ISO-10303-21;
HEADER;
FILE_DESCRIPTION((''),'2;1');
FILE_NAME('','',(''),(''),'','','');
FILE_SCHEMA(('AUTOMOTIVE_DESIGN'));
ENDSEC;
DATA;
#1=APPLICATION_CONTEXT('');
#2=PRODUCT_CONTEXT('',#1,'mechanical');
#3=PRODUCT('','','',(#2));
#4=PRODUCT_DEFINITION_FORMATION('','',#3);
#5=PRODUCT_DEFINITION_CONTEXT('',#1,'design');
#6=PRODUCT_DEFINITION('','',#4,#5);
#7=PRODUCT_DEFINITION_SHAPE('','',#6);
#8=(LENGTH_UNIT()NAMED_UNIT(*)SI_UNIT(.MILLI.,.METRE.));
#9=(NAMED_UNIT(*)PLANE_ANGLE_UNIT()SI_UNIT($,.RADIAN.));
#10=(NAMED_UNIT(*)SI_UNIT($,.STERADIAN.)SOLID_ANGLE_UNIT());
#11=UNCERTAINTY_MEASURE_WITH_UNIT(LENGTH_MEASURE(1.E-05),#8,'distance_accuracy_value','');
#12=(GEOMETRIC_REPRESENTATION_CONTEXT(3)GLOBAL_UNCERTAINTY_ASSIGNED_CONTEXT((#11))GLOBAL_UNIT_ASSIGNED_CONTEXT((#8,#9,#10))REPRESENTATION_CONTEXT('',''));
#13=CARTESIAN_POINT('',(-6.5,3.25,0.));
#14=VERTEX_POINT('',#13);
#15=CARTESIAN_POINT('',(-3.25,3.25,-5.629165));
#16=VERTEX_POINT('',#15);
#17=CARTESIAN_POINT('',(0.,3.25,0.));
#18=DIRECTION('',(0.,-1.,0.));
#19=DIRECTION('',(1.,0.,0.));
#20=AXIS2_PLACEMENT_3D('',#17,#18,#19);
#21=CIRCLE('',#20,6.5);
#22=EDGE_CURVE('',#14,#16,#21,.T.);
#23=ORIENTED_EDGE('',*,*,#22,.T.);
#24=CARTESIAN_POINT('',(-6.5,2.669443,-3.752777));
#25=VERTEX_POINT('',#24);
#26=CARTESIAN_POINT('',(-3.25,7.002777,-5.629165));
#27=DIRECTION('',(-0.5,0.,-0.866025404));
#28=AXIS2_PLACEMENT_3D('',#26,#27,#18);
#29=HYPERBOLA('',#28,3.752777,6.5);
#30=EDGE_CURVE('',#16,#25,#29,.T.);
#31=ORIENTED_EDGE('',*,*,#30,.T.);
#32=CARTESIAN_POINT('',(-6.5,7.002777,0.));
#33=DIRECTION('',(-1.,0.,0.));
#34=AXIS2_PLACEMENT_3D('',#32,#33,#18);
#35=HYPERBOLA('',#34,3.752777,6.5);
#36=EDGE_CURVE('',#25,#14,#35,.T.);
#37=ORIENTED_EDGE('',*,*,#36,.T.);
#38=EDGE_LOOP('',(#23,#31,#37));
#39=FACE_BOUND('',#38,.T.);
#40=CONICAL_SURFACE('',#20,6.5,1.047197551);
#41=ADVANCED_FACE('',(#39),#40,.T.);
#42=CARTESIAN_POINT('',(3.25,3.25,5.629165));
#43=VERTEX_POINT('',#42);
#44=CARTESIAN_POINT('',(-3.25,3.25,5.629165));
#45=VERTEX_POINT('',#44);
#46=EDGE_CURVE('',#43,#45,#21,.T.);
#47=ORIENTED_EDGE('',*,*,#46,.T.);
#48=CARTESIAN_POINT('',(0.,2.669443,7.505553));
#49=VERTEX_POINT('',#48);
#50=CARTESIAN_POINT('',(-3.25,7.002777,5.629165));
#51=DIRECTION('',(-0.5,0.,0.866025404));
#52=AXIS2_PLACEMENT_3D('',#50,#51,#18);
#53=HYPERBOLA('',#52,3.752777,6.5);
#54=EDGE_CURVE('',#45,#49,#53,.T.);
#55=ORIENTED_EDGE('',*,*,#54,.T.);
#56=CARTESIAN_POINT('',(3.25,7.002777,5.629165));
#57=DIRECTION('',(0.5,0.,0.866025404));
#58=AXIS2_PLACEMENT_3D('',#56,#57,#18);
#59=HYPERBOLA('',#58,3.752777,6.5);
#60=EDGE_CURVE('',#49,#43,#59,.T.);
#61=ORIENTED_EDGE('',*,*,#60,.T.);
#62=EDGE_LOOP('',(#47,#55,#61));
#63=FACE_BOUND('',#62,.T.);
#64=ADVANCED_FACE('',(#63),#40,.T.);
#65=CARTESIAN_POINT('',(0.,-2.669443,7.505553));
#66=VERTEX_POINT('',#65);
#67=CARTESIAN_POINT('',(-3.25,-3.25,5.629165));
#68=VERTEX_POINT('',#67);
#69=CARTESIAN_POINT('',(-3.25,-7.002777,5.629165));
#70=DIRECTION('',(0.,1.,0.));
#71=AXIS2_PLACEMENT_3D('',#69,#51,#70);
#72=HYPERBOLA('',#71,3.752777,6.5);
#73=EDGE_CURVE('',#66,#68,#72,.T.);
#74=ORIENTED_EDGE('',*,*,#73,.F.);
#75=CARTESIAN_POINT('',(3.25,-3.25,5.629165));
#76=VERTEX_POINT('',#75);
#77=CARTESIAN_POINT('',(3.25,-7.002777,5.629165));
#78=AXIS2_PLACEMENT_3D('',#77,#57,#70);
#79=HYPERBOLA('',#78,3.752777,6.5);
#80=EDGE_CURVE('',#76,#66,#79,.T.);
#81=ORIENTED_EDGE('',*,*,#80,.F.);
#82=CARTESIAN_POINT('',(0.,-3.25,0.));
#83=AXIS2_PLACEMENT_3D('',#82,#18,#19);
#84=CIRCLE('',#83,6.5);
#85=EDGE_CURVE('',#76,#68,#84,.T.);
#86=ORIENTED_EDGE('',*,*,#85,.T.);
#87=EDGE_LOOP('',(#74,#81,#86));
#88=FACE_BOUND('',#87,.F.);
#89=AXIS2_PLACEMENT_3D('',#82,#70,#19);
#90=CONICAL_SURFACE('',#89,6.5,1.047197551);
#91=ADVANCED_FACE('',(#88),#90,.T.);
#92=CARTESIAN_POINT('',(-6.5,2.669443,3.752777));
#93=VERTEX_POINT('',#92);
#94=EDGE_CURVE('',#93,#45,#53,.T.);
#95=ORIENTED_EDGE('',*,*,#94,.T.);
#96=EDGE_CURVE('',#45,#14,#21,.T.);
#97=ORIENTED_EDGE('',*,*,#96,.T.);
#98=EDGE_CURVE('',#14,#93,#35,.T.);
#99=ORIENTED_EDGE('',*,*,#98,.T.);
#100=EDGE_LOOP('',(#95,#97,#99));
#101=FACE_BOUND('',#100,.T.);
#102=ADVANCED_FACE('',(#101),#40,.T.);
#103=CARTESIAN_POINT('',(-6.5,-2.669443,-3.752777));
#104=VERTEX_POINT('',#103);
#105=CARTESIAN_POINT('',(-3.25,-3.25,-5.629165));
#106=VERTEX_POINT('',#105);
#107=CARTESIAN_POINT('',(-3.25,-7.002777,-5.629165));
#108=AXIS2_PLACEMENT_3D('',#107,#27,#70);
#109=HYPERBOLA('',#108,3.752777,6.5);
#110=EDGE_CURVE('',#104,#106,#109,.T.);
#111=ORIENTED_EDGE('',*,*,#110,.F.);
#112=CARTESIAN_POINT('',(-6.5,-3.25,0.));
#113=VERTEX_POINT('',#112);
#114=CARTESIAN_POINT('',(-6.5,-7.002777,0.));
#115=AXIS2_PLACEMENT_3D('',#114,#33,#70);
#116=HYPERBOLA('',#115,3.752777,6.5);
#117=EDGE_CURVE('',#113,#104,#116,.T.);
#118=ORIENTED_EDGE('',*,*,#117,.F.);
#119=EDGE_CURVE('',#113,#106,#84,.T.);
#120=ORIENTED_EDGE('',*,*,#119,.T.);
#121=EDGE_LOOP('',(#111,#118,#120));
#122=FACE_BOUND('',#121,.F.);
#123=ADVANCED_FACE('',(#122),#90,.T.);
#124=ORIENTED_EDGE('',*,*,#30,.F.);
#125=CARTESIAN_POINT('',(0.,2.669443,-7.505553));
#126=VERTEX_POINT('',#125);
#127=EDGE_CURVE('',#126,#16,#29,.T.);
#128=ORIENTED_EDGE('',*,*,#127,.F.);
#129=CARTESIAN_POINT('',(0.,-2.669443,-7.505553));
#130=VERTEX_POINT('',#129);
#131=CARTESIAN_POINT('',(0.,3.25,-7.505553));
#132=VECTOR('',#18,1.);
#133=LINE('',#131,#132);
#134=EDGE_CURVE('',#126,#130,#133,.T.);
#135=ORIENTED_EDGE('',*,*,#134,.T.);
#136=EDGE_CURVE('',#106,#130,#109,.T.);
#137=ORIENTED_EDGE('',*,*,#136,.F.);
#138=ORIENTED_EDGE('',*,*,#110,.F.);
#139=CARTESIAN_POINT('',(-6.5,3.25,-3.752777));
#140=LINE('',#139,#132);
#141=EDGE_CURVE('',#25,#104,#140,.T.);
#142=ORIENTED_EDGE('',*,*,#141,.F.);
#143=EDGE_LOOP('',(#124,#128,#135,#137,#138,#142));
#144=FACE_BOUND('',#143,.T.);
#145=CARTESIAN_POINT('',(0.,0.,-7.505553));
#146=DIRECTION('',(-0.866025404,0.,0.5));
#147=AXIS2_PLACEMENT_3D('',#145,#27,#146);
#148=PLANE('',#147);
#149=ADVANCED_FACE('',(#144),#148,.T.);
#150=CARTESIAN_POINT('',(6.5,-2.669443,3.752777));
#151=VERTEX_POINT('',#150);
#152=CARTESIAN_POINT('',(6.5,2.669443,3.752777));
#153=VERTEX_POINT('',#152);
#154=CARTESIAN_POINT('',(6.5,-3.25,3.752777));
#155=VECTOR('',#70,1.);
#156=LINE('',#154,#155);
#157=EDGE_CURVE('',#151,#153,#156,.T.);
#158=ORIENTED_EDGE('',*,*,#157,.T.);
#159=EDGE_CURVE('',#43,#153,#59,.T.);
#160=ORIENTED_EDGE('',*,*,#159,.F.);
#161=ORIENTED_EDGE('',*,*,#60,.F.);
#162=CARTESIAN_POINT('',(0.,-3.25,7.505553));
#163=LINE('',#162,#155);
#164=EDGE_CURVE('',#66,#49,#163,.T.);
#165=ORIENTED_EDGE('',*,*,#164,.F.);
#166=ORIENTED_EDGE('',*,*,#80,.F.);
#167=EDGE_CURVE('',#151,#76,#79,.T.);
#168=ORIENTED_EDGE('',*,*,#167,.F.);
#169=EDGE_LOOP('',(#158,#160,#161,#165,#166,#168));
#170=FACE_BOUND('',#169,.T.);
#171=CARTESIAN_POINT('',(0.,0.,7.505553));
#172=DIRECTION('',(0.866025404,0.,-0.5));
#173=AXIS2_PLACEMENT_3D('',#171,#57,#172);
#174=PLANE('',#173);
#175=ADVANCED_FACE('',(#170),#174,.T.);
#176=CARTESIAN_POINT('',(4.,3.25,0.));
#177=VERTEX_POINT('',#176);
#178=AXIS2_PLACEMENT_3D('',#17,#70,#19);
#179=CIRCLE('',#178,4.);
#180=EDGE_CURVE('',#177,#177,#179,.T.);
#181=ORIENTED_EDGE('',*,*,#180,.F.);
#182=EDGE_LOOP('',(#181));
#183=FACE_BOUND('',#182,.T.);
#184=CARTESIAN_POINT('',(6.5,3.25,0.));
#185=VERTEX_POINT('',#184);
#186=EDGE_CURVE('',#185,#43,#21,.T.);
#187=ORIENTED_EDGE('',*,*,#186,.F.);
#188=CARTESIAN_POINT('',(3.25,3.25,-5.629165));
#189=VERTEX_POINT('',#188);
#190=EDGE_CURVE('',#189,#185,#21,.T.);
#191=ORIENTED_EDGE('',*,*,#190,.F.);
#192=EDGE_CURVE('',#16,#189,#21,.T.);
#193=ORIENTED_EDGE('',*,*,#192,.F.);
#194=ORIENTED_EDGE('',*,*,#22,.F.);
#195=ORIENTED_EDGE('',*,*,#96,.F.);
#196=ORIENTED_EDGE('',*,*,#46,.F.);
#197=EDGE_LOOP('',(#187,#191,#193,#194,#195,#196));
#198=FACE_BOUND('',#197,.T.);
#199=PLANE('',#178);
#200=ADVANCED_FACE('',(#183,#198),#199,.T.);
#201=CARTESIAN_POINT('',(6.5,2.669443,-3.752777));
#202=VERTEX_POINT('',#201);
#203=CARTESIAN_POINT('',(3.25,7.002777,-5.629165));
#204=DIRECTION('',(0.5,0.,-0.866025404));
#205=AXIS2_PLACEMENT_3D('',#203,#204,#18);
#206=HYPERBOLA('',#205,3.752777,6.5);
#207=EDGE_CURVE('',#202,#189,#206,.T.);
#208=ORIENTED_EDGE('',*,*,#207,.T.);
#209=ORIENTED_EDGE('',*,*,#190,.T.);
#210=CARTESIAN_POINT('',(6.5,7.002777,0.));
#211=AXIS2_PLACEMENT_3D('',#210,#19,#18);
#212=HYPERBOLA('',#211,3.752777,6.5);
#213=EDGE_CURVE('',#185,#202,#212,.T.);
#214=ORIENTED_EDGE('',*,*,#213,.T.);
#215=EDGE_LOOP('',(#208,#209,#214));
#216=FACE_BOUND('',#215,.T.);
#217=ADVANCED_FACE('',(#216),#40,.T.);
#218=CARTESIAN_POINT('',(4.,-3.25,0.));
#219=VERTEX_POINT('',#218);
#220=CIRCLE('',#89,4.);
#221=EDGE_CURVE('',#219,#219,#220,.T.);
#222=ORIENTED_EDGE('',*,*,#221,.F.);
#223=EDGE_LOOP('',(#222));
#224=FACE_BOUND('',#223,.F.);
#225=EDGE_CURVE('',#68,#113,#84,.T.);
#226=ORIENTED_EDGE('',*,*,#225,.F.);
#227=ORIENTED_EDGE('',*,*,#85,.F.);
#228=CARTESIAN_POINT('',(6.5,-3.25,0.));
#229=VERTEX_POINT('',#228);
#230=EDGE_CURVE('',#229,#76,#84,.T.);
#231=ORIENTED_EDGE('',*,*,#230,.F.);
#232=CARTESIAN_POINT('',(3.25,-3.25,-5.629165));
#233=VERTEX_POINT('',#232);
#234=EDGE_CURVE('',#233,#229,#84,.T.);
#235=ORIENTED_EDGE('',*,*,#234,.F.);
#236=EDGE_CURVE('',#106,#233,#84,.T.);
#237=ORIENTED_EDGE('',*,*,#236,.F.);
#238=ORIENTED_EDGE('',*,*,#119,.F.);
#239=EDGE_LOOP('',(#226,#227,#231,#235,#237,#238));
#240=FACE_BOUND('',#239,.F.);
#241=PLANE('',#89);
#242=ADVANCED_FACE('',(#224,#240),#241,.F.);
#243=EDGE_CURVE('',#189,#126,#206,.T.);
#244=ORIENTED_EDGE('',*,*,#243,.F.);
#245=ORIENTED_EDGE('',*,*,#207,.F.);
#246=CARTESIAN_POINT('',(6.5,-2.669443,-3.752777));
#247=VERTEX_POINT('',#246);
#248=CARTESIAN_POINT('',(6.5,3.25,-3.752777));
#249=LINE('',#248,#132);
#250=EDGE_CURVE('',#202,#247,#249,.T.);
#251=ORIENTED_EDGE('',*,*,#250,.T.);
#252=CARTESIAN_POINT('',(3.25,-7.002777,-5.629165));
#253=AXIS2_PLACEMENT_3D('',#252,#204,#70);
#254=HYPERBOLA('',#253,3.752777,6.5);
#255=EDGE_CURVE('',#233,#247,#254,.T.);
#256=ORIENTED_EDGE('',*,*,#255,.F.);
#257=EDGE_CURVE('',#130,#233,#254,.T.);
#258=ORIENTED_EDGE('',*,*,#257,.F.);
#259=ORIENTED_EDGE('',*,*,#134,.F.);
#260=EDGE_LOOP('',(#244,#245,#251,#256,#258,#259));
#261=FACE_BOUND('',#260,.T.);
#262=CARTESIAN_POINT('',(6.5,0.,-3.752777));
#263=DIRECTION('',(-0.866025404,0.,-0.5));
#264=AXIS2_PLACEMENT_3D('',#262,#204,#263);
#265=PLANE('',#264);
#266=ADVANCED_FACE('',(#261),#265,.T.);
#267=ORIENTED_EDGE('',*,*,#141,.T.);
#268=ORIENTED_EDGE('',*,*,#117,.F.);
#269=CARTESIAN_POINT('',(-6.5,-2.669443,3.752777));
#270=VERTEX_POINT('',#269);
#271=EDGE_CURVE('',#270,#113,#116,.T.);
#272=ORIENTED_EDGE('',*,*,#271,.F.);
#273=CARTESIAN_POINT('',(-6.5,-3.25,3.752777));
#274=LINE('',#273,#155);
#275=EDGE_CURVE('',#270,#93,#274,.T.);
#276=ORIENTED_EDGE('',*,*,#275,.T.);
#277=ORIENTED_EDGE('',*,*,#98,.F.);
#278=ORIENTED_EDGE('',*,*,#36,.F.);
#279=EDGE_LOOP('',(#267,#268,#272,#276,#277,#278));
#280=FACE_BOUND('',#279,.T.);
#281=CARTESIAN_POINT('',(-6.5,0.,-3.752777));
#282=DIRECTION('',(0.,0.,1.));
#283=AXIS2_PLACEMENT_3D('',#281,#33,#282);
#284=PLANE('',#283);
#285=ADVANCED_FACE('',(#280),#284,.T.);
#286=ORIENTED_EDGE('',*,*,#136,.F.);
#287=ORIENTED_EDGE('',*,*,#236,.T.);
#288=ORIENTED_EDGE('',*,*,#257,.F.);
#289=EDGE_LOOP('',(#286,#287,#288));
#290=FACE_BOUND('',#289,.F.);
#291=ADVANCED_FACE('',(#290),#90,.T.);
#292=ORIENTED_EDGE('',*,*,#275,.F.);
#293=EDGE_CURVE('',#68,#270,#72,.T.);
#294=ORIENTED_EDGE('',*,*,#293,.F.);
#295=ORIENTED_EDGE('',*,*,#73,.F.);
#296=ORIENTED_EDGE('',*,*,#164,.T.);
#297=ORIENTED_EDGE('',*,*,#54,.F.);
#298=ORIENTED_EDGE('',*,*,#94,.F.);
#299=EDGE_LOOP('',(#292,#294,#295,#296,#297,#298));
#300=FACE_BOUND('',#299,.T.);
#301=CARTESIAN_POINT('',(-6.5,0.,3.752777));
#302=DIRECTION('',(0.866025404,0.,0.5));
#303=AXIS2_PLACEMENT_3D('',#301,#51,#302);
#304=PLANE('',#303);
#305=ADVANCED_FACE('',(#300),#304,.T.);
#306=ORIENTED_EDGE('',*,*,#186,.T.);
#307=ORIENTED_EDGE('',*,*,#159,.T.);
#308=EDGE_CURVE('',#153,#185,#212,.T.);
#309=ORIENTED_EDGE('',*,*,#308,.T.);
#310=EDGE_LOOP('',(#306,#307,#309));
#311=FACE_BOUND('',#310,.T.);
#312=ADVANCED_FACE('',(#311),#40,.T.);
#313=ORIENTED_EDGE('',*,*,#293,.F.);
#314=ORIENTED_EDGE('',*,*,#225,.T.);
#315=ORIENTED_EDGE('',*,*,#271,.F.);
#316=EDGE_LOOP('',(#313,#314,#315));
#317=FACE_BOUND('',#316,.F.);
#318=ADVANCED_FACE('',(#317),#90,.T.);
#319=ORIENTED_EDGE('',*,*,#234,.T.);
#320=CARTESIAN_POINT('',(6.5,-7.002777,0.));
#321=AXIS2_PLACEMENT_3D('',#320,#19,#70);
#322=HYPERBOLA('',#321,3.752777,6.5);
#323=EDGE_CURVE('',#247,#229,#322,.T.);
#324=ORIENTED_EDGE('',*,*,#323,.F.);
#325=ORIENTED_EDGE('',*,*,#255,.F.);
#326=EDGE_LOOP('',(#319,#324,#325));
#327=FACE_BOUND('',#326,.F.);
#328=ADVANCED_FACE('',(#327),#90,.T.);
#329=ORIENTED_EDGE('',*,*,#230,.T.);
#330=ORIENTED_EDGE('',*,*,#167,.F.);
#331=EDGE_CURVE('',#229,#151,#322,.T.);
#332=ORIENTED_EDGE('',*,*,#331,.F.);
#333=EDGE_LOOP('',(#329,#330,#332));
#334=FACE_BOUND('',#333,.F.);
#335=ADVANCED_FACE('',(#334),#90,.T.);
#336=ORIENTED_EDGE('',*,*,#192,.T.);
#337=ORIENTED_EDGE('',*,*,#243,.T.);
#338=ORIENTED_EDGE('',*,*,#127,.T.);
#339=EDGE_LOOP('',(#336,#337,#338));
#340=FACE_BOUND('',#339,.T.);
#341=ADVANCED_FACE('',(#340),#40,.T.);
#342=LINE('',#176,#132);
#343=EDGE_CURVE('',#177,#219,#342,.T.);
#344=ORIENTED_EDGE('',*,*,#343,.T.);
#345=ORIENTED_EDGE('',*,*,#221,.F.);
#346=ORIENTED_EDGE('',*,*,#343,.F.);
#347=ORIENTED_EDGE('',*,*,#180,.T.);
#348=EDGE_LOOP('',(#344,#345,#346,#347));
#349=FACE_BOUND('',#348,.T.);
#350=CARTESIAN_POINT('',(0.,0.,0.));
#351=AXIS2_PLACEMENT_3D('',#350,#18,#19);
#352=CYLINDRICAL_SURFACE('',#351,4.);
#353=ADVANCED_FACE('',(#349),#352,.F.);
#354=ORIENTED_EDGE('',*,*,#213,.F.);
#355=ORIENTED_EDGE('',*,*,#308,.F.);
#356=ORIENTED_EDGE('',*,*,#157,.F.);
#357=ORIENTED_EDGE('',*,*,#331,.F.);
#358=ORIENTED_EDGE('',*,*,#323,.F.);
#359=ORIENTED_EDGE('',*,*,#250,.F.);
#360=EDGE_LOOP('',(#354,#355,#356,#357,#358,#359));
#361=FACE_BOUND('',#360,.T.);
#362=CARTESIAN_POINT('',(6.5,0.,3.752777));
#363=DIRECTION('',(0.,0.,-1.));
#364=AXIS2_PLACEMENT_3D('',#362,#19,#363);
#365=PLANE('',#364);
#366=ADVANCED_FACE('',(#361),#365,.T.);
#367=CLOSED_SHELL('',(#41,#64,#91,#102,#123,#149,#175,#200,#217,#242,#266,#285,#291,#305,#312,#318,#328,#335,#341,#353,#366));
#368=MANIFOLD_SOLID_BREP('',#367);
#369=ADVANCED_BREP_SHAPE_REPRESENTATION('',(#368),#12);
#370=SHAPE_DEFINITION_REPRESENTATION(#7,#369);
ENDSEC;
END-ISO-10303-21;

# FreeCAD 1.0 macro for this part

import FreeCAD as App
import Part
import Sketcher

V = App.Vector
Q = App.Units.Quantity

doc = App.newDocument("Part")
body = doc.addObject("PartDesign::Body", "Body")

sketch1 = doc.addObject("Sketcher::SketchObject", "Sketch")
body.addObject(sketch1)
sketch1.AttachmentSupport = (doc.XZ_Plane, [""])
sketch1.MapMode = "FlatFace"
sketch1.addGeometry([
    Part.LineSegment(V(-6.5, -3.752777, 0), V(-6.5, 3.752777, 0)),
    Part.LineSegment(V(-6.5, 3.752777, 0), V(0, 7.505553, 0)),
    Part.LineSegment(V(0, 7.505553, 0), V(6.5, 3.752777, 0)),
    Part.LineSegment(V(6.5, 3.752777, 0), V(6.5, -3.752777, 0)),
    Part.LineSegment(V(6.5, -3.752777, 0), V(0, -7.505553, 0)),
    Part.LineSegment(V(0, -7.505553, 0), V(-6.5, -3.752777, 0)),
    Part.Circle(V(0, 0, 0), V(0, 0, 1), 4),
], False)
sketch1.addConstraint([
    Sketcher.Constraint("Coincident", 0, 2, 1, 1),
    Sketcher.Constraint("Coincident", 1, 2, 2, 1),
    Sketcher.Constraint("Coincident", 2, 2, 3, 1),
    Sketcher.Constraint("Coincident", 3, 2, 4, 1),
    Sketcher.Constraint("Coincident", 4, 2, 5, 1),
    Sketcher.Constraint("Coincident", 5, 2, 0, 1),
    Sketcher.Constraint("Vertical", 0),
    Sketcher.Constraint("Vertical", 3),
    Sketcher.Constraint("Coincident", 6, 3, -1, 1),
    Sketcher.Constraint("Symmetric", 0, 2, 3, 2, -1, 1),
    Sketcher.Constraint("Symmetric", 1, 2, 4, 2, -1, 1),
    Sketcher.Constraint("PointOnObject", 1, 2, -2),
    Sketcher.Constraint("Parallel", 2, 5),
    Sketcher.Constraint("Horizontal", 0, 2, 2, 2),
    Sketcher.Constraint("Diameter", 6, 8.0),
    Sketcher.Constraint("Angle", 1, Q("30 deg")),
    Sketcher.Constraint("DistanceX", 0, 2, 2, 2, 13.0),
    Sketcher.Constraint("DistanceY", 0, 1, 0, 2, 7.505554),
])
pad1 = doc.addObject("PartDesign::Pad", "Pad")
body.addObject(pad1)
pad1.Profile = sketch1
pad1.Length = 6.5
pad1.Midplane = True

sketch2 = doc.addObject("Sketcher::SketchObject", "Sketch001")
body.addObject(sketch2)
sketch2.AttachmentSupport = (doc.XZ_Plane, [""])
sketch2.MapMode = "FlatFace"
sketch2.AttachmentOffset = App.Placement(V(0, 0, -3.25), App.Rotation())
sketch2.addGeometry([
    Part.LineSegment(V(-22.58, -23.586, 0), V(-22.58, 23.586, 0)),
    Part.LineSegment(V(-22.58, 23.586, 0), V(22.58, 23.586, 0)),
    Part.LineSegment(V(22.58, 23.586, 0), V(22.58, -23.586, 0)),
    Part.LineSegment(V(22.58, -23.586, 0), V(-22.58, -23.586, 0)),
    Part.Circle(V(0, 0, 0), V(0, 0, 1), 6.5),
], False)
sketch2.addConstraint([
    Sketcher.Constraint("Coincident", 0, 2, 1, 1),
    Sketcher.Constraint("Coincident", 1, 2, 2, 1),
    Sketcher.Constraint("Coincident", 2, 2, 3, 1),
    Sketcher.Constraint("Coincident", 3, 2, 0, 1),
    Sketcher.Constraint("Vertical", 0),
    Sketcher.Constraint("Horizontal", 1),
    Sketcher.Constraint("Vertical", 2),
    Sketcher.Constraint("Horizontal", 3),
    Sketcher.Constraint("Coincident", 4, 3, -1, 1),
    Sketcher.Constraint("Symmetric", 0, 2, 2, 2, -1, 1),
    Sketcher.Constraint("Diameter", 4, 13.0),
    Sketcher.Constraint("DistanceX", 1, 1, 1, 2, 45.16),
    Sketcher.Constraint("DistanceY", 0, 1, 0, 2, 47.172),
])
pocket1 = doc.addObject("PartDesign::Pocket", "Pocket")
body.addObject(pocket1)
pocket1.Profile = sketch2
pocket1.Length = 7.5
pocket1.Reversed = True
pocket1.TaperAngle = 60
doc.recompute()

mirrored = doc.addObject("PartDesign::Mirrored", "Mirrored")
body.addObject(mirrored)
mirrored.Originals = [pocket1]
mirrored.MirrorPlane = (doc.XZ_Plane, [""])
body.Tip = mirrored

doc.recompute()
